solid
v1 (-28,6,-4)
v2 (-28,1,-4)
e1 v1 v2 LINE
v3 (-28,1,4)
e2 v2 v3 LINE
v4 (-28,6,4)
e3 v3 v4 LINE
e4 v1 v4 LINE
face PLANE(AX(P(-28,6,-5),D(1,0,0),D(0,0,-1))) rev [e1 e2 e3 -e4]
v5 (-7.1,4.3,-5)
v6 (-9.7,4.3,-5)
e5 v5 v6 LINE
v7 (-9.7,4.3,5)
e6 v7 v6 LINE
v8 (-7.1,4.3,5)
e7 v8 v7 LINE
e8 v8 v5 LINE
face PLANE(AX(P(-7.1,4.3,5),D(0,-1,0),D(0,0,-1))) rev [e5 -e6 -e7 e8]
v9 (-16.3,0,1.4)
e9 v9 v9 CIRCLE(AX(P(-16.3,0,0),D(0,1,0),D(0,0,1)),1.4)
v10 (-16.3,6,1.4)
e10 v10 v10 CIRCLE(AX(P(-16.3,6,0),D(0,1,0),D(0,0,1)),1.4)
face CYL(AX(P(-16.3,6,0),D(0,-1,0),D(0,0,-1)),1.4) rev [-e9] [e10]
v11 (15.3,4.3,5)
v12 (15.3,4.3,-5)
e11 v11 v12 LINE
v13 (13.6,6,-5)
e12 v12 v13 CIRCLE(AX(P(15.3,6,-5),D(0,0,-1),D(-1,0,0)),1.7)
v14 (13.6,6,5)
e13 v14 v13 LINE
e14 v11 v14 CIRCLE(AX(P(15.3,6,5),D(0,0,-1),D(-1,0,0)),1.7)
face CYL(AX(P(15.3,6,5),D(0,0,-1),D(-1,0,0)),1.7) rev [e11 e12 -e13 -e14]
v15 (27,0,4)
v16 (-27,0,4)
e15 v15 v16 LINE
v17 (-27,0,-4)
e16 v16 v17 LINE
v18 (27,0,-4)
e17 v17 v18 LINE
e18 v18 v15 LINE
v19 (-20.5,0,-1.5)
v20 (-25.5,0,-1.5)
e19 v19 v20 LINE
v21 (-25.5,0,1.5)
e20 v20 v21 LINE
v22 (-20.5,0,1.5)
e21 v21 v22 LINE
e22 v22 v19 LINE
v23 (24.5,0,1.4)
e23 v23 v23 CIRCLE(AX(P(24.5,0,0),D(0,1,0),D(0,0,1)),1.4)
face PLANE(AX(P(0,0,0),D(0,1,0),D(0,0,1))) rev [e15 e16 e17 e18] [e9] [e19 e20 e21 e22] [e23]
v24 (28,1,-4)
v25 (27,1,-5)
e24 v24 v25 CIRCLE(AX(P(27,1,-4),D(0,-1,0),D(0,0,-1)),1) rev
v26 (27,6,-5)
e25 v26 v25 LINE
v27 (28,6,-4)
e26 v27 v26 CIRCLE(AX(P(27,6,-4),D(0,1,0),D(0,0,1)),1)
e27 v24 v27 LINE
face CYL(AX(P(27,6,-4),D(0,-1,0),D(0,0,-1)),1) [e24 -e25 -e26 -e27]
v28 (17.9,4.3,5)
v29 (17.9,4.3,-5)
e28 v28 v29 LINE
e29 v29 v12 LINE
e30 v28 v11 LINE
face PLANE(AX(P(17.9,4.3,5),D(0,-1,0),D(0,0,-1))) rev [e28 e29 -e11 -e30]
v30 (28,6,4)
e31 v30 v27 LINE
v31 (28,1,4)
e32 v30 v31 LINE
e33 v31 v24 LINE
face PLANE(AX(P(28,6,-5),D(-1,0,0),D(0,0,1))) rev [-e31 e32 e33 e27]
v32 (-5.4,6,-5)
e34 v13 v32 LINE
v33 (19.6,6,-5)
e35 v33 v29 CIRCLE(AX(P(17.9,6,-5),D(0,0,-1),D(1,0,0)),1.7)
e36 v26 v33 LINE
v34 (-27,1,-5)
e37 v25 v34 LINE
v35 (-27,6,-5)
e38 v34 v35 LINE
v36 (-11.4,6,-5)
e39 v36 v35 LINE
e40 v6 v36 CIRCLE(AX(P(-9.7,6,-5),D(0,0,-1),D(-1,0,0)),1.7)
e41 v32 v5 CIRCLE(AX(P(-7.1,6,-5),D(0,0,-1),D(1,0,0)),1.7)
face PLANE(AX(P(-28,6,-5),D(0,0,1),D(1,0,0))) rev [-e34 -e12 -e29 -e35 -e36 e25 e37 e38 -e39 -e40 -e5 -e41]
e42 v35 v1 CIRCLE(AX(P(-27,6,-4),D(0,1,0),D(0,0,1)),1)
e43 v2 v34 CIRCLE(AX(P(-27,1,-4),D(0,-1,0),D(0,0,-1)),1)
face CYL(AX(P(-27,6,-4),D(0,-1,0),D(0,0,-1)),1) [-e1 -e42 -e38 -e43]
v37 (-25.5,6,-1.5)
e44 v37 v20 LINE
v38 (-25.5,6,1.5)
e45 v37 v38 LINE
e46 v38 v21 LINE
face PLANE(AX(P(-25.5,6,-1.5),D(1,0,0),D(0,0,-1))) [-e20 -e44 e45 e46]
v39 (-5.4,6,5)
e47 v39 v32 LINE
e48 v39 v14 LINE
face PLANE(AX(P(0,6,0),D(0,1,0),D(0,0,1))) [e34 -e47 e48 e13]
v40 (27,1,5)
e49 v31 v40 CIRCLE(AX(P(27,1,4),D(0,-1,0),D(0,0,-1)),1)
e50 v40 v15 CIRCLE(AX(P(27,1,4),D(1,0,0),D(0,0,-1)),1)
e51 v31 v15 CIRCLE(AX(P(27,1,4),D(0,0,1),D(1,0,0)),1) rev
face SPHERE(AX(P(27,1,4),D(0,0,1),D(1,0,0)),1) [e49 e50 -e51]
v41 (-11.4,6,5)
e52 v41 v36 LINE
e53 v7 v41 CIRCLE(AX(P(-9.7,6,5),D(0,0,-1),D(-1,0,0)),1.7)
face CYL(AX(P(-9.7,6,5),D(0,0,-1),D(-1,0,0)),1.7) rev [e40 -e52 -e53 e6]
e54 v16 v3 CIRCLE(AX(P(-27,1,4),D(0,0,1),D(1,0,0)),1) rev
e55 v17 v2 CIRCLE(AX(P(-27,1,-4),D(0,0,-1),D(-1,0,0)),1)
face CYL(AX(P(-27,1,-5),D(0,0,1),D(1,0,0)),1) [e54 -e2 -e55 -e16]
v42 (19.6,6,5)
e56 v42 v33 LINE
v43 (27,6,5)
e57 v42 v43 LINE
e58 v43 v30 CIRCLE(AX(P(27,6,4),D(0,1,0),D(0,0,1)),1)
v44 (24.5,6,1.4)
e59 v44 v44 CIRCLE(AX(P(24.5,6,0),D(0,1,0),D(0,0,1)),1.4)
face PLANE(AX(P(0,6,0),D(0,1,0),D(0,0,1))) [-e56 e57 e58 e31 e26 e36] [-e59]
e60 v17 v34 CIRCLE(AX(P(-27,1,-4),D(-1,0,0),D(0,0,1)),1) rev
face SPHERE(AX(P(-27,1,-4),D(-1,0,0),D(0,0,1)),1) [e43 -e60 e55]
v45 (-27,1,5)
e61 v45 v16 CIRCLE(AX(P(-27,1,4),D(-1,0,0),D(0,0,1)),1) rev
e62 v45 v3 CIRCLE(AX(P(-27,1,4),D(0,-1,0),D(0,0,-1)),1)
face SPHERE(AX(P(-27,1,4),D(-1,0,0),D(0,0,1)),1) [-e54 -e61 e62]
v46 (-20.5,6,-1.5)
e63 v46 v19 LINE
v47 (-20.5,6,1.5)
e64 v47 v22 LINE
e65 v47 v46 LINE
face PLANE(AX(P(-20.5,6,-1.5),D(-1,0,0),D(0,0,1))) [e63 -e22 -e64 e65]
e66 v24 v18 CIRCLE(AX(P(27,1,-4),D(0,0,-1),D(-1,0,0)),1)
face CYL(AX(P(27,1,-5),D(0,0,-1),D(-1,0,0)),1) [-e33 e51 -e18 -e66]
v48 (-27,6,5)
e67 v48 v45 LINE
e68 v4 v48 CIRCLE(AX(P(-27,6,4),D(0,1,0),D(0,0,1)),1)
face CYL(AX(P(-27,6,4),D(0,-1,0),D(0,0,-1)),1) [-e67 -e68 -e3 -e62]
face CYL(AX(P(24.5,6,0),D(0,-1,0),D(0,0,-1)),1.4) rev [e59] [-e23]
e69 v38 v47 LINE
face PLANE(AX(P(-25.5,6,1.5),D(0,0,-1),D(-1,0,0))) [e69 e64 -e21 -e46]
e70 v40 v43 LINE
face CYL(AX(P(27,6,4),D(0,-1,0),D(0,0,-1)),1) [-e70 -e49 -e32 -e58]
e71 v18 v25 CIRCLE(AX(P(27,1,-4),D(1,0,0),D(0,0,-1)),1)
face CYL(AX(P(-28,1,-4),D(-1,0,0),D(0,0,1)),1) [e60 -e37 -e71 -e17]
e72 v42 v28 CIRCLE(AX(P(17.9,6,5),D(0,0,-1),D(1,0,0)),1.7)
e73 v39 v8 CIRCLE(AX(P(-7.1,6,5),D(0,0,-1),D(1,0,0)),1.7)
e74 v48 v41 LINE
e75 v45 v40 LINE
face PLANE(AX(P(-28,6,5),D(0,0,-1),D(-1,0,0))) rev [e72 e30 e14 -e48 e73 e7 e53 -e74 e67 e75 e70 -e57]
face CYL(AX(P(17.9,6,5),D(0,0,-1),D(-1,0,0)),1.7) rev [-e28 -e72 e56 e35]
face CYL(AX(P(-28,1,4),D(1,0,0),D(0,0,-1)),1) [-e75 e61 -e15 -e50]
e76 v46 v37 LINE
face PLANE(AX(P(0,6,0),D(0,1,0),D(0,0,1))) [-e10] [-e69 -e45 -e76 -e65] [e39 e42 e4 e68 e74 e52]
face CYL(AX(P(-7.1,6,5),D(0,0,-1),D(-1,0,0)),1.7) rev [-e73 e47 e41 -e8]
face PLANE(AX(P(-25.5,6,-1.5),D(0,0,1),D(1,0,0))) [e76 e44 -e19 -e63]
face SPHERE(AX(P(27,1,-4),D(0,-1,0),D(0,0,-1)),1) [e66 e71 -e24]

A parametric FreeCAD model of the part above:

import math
import FreeCAD as App
import Part
import Sketcher

V = App.Vector
Q = App.Units.Quantity


def edges_at(feature, points):
    """Names of the edges that pass closest to the given points."""
    edges = feature.Shape.Edges
    near = lambda p: min(range(len(edges)), key=lambda i: edges[i].distToShape(Part.Vertex(*p))[0])
    return sorted({f"Edge{near(p) + 1}" for p in points})

doc = App.newDocument("Part")
params = doc.addObject("Spreadsheet::Sheet", "Params")
for row, (alias, value) in enumerate([
    ("sketch1_diameter", "2.8 mm"),
    ("sketch1_width", "56 mm"),
    ("sketch1_width2", "5 mm"),
    ("sketch1_height", "10 mm"),
    ("sketch1_height2", "3 mm"),
    ("pad1_length", "6 mm"),
    ("sketch2_radius", "1.7 mm"),
    ("sketch2_width", "6 mm"),
    ("fillet_radius", "1 mm"),
], start=1):
    params.set(f"A{row}", alias)
    params.set(f"B{row}", "=" + value)
    params.setAlias(f"B{row}", alias)

body = doc.addObject("PartDesign::Body", "Body")

# Sketch on XZ plane
sketch1 = body.newObject("Sketcher::SketchObject", "Sketch")
sketch1.AttachmentSupport = (doc.getObject("XZ_Plane"), [""])
sketch1.MapMode = "FlatFace"
sketch1.addGeometry([
    Part.LineSegment(V(-28, -5, 0), V(-28, 5, 0)),  # 0
    Part.LineSegment(V(-28, 5, 0), V(28, 5, 0)),  # 1
    Part.LineSegment(V(28, 5, 0), V(28, -5, 0)),  # 2
    Part.LineSegment(V(28, -5, 0), V(-28, -5, 0)),  # 3
    Part.LineSegment(V(-20.5, 1.5, 0), V(-25.5, 1.5, 0)),  # 4
    Part.LineSegment(V(-25.5, 1.5, 0), V(-25.5, -1.5, 0)),  # 5
    Part.LineSegment(V(-25.5, -1.5, 0), V(-20.5, -1.5, 0)),  # 6
    Part.LineSegment(V(-20.5, -1.5, 0), V(-20.5, 1.5, 0)),  # 7
    Part.Circle(V(-16.3, 0, 0), V(0, 0, 1), 1.4),  # 8
    Part.Circle(V(24.5, 0, 0), V(0, 0, 1), 1.4),  # 9
], False)
sketch1.addConstraint([
    Sketcher.Constraint("Coincident", 0, 2, 1, 1),
    Sketcher.Constraint("Coincident", 1, 2, 2, 1),
    Sketcher.Constraint("Coincident", 2, 2, 3, 1),
    Sketcher.Constraint("Coincident", 3, 2, 0, 1),
    Sketcher.Constraint("Coincident", 4, 2, 5, 1),
    Sketcher.Constraint("Coincident", 5, 2, 6, 1),
    Sketcher.Constraint("Coincident", 6, 2, 7, 1),
    Sketcher.Constraint("Coincident", 7, 2, 4, 1),
    Sketcher.Constraint("Vertical", 0),
    Sketcher.Constraint("Horizontal", 1),
    Sketcher.Constraint("Vertical", 2),
    Sketcher.Constraint("Horizontal", 3),
    Sketcher.Constraint("Horizontal", 4),
    Sketcher.Constraint("Vertical", 5),
    Sketcher.Constraint("Horizontal", 6),
    Sketcher.Constraint("Vertical", 7),
    Sketcher.Constraint("Equal", 8, 9),
    Sketcher.Constraint("Symmetric", 0, 2, 2, 2, -1, 1),
    Sketcher.Constraint("PointOnObject", 8, 3, -1),
    Sketcher.Constraint("PointOnObject", 9, 3, -1),
    Sketcher.Constraint("Diameter", 8, Q("2.8 mm")),
    Sketcher.Constraint("DistanceX", 1, 1, 1, 2, Q("56 mm")),
    Sketcher.Constraint("DistanceX", 4, 2, 4, 1, Q("5 mm")),
    Sketcher.Constraint("DistanceY", 0, 1, 0, 2, Q("10 mm")),
    Sketcher.Constraint("DistanceY", 5, 2, 5, 1, Q("3 mm")),
    Sketcher.Constraint("DistanceX", 4, 2, 9, 3, Q("50 mm")),
    Sketcher.Constraint("DistanceX", 8, 3, -1, 1, Q("16.3 mm")),
    Sketcher.Constraint("DistanceX", -1, 1, 9, 3, Q("24.5 mm")),
    Sketcher.Constraint("DistanceY", -1, 1, 4, 2, Q("1.5 mm")),
])
sketch1.setExpression("Constraints[20]", "Params.sketch1_diameter")
sketch1.setExpression("Constraints[21]", "Params.sketch1_width")
sketch1.setExpression("Constraints[22]", "Params.sketch1_width2")
sketch1.setExpression("Constraints[23]", "Params.sketch1_height")
sketch1.setExpression("Constraints[24]", "Params.sketch1_height2")
pad1 = body.newObject("PartDesign::Pad", "Pad")
pad1.Profile = sketch1
pad1.setExpression("Length", "Params.pad1_length")
pad1.Reversed = True

# Sketch on XY plane
sketch2 = body.newObject("Sketcher::SketchObject", "Sketch001")
sketch2.AttachmentSupport = (doc.getObject("XY_Plane"), [""])
sketch2.MapMode = "FlatFace"
sketch2.AttachmentOffset = App.Placement(V(0, 0, -5), App.Rotation())
sketch2.addGeometry([
    Part.LineSegment(V(13.6, 6, 0), V(19.6, 6, 0)),  # 0
    Part.ArcOfCircle(Part.Circle(V(17.9, 6, 0), V(0, 0, 1), 1.7), math.radians(-90), math.radians(0)),  # 1
    Part.LineSegment(V(17.9, 4.3, 0), V(15.3, 4.3, 0)),  # 2
    Part.ArcOfCircle(Part.Circle(V(15.3, 6, 0), V(0, 0, 1), 1.7), math.radians(180), math.radians(270)),  # 3
    Part.LineSegment(V(-11.4, 6, 0), V(-5.4, 6, 0)),  # 4
    Part.ArcOfCircle(Part.Circle(V(-7.1, 6, 0), V(0, 0, 1), 1.7), math.radians(-90), math.radians(0)),  # 5
    Part.LineSegment(V(-7.1, 4.3, 0), V(-9.7, 4.3, 0)),  # 6
    Part.ArcOfCircle(Part.Circle(V(-9.7, 6, 0), V(0, 0, 1), 1.7), math.radians(180), math.radians(270)),  # 7
], False)
sketch2.addConstraint([
    Sketcher.Constraint("Coincident", 0, 2, 1, 2),
    Sketcher.Constraint("Tangent", 1, 1, 2, 1),
    Sketcher.Constraint("Tangent", 2, 2, 3, 2),
    Sketcher.Constraint("Coincident", 3, 1, 0, 1),
    Sketcher.Constraint("Coincident", 4, 2, 5, 2),
    Sketcher.Constraint("Tangent", 5, 1, 6, 1),
    Sketcher.Constraint("Tangent", 6, 2, 7, 2),
    Sketcher.Constraint("Coincident", 7, 1, 4, 1),
    Sketcher.Constraint("Horizontal", 0),
    Sketcher.Constraint("Horizontal", 2),
    Sketcher.Constraint("Horizontal", 4),
    Sketcher.Constraint("Horizontal", 6),
    Sketcher.Constraint("Equal", 1, 3),
    Sketcher.Constraint("Equal", 3, 5),
    Sketcher.Constraint("Equal", 5, 7),
    Sketcher.Constraint("Horizontal", 3, 3, 5, 3),
    Sketcher.Constraint("Horizontal", 7, 3, 0, 2),
    Sketcher.Constraint("Horizontal", 3, 1, 4, 2),
    Sketcher.Constraint("Equal", 0, 4),
    Sketcher.Constraint("Radius", 1, Q("1.7 mm")),
    Sketcher.Constraint("DistanceX", 0, 1, 0, 2, Q("6 mm")),
    Sketcher.Constraint("DistanceY", -1, 1, 1, 3, Q("6 mm")),
    Sketcher.Constraint("DistanceX", 5, 3, 1, 3, Q("25 mm")),
    Sketcher.Constraint("DistanceX", -1, 1, 1, 3, Q("17.9 mm")),
])
sketch2.setExpression("Constraints[19]", "Params.sketch2_radius")
sketch2.setExpression("Constraints[20]", "Params.sketch2_width")
pocket1 = body.newObject("PartDesign::Pocket", "Pocket")
pocket1.Profile = sketch2
pocket1.Type = "ThroughAll"
pocket1.Reversed = True
doc.recompute()

fillet = body.newObject("PartDesign::Fillet", "Fillet")
fillet.Base = (pocket1, edges_at(pocket1, [
    (0, 0, 5),
    (-28, 0, 0),
    (0, 0, -5),
    (28, 0, 0),
    (28, 3, 5),
    (-28, 3, 5),
    (-28, 3, -5),
    (28, 3, -5),
]))
fillet.setExpression("Radius", "Params.fillet_radius")

doc.recompute()
